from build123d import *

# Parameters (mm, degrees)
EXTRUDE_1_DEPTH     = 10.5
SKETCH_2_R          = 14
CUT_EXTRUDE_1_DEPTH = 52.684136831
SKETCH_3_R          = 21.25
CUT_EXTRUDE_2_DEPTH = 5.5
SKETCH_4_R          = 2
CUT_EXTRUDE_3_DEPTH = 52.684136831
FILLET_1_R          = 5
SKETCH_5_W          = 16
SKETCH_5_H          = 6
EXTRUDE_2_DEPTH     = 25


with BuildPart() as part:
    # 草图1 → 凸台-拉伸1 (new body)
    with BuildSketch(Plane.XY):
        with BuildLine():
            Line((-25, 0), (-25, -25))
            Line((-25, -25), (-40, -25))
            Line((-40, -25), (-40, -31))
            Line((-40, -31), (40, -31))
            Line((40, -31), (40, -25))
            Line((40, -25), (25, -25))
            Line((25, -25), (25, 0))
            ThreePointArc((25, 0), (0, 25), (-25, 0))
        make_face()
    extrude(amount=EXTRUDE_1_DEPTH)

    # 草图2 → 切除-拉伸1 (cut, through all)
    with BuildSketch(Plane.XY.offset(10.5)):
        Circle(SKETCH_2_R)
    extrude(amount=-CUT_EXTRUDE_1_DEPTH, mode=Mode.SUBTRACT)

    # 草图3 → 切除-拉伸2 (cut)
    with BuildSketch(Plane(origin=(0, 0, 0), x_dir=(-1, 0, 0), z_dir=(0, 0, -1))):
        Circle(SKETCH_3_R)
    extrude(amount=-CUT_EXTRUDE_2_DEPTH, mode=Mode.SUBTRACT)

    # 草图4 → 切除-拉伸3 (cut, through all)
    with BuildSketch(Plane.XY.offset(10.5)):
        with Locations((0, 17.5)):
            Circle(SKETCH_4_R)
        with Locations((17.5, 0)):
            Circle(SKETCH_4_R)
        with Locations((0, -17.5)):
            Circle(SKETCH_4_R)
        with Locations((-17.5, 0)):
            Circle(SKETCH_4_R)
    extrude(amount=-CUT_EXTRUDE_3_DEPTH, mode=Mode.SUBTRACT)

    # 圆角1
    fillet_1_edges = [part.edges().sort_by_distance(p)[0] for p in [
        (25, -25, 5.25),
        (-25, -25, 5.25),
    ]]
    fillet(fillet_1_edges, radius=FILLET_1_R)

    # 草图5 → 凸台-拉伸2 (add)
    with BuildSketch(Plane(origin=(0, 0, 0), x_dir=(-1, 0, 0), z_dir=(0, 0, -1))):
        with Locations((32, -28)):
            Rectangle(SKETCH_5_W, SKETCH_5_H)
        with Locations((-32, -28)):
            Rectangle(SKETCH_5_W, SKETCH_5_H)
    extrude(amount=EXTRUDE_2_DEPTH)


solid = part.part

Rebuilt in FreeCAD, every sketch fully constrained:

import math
import FreeCAD as App
import Part
import Sketcher


def edges_at(feature, points):
    """Names of the edges that pass closest to the given points."""
    edges = feature.Shape.Edges
    near = lambda p: min(range(len(edges)), key=lambda i: edges[i].distToShape(Part.Vertex(*p))[0])
    return sorted({f"Edge{near(p) + 1}" for p in points})

doc = App.newDocument("Part")
body = doc.addObject("PartDesign::Body", "Body")

# Sketch on XY plane
sketch1 = doc.addObject("Sketcher::SketchObject", "Sketch")
body.addObject(sketch1)
sketch1.AttachmentSupport = (doc.XY_Plane, [""])
sketch1.MapMode = "FlatFace"
sketch1.addGeometry([
    Part.LineSegment(App.Vector(-25, 0, 0), App.Vector(-25, -25, 0)),  # 0
    Part.LineSegment(App.Vector(-25, -25, 0), App.Vector(-40, -25, 0)),  # 1
    Part.LineSegment(App.Vector(-40, -25, 0), App.Vector(-40, -31, 0)),  # 2
    Part.LineSegment(App.Vector(-40, -31, 0), App.Vector(40, -31, 0)),  # 3
    Part.LineSegment(App.Vector(40, -31, 0), App.Vector(40, -25, 0)),  # 4
    Part.LineSegment(App.Vector(40, -25, 0), App.Vector(25, -25, 0)),  # 5
    Part.LineSegment(App.Vector(25, -25, 0), App.Vector(25, 0, 0)),  # 6
    Part.ArcOfCircle(Part.Circle(App.Vector(0, 0, 0), App.Vector(0, 0, 1), 25), math.radians(0), math.radians(180)),  # 7
], False)
sketch1.addConstraint([
    Sketcher.Constraint("Coincident", 0, 2, 1, 1),
    Sketcher.Constraint("Coincident", 1, 2, 2, 1),
    Sketcher.Constraint("Coincident", 2, 2, 3, 1),
    Sketcher.Constraint("Coincident", 3, 2, 4, 1),
    Sketcher.Constraint("Coincident", 4, 2, 5, 1),
    Sketcher.Constraint("Coincident", 5, 2, 6, 1),
    Sketcher.Constraint("Tangent", 6, 2, 7, 1),
    Sketcher.Constraint("Tangent", 7, 2, 0, 1),
    Sketcher.Constraint("Vertical", 0),
    Sketcher.Constraint("Horizontal", 1),
    Sketcher.Constraint("Vertical", 2),
    Sketcher.Constraint("Horizontal", 3),
    Sketcher.Constraint("Vertical", 4),
    Sketcher.Constraint("Horizontal", 5),
    Sketcher.Constraint("Vertical", 6),
    Sketcher.Constraint("Coincident", 7, 3, -1, 1),
    Sketcher.Constraint("Symmetric", 1, 2, 4, 2, -2),
    Sketcher.Constraint("Radius", 7, 25.0),
    Sketcher.Constraint("DistanceX", 1, 2, 1, 1, 15.0),
    Sketcher.Constraint("DistanceY", 0, 2, 0, 1, 25.0),
    Sketcher.Constraint("DistanceY", 2, 2, 2, 1, 6.0),
])
pad1 = doc.addObject("PartDesign::Pad", "Pad")
body.addObject(pad1)
pad1.Profile = sketch1
pad1.Length = 10.5

# Sketch on XY plane
sketch2 = doc.addObject("Sketcher::SketchObject", "Sketch001")
body.addObject(sketch2)
sketch2.AttachmentSupport = (doc.XY_Plane, [""])
sketch2.MapMode = "FlatFace"
sketch2.AttachmentOffset = App.Placement(App.Vector(0, 0, 10.5), App.Rotation())
sketch2.addGeometry(Part.Circle(App.Vector(0, 0, 0), App.Vector(0, 0, 1), 14), False)
sketch2.addConstraint([
    Sketcher.Constraint("Coincident", 0, 3, -1, 1),
    Sketcher.Constraint("Diameter", 0, 28.0),
])
pocket1 = doc.addObject("PartDesign::Pocket", "Pocket")
body.addObject(pocket1)
pocket1.Profile = sketch2
pocket1.Type = "ThroughAll"

# Sketch on XY plane
sketch3 = doc.addObject("Sketcher::SketchObject", "Sketch002")
body.addObject(sketch3)
sketch3.AttachmentSupport = (doc.XY_Plane, [""])
sketch3.MapMode = "FlatFace"
sketch3.addGeometry(Part.Circle(App.Vector(0, 0, 0), App.Vector(0, 0, 1), 21), False)
sketch3.addConstraint([
    Sketcher.Constraint("Coincident", 0, 3, -1, 1),
    Sketcher.Constraint("Diameter", 0, 42.5),
])
pocket2 = doc.addObject("PartDesign::Pocket", "Pocket001")
body.addObject(pocket2)
pocket2.Profile = sketch3
pocket2.Length = 5.5
pocket2.Reversed = True

# Sketch on XY plane
sketch4 = doc.addObject("Sketcher::SketchObject", "Sketch003")
body.addObject(sketch4)
sketch4.AttachmentSupport = (doc.XY_Plane, [""])
sketch4.MapMode = "FlatFace"
sketch4.AttachmentOffset = App.Placement(App.Vector(0, 0, 10.5), App.Rotation())
sketch4.addGeometry([
    Part.Circle(App.Vector(0, 17.5, 0), App.Vector(0, 0, 1), 2),
    Part.Circle(App.Vector(17.5, 0, 0), App.Vector(0, 0, 1), 2),
    Part.Circle(App.Vector(0, -17.5, 0), App.Vector(0, 0, 1), 2),
    Part.Circle(App.Vector(-17.5, 0, 0), App.Vector(0, 0, 1), 2),
], False)
sketch4.addConstraint([
    Sketcher.Constraint("Equal", 0, 1),
    Sketcher.Constraint("Equal", 1, 2),
    Sketcher.Constraint("Equal", 2, 3),
    Sketcher.Constraint("Symmetric", 0, 3, 2, 3, -1, 1),
    Sketcher.Constraint("Symmetric", 1, 3, 3, 3, -1, 1),
    Sketcher.Constraint("PointOnObject", 0, 3, -2),
    Sketcher.Constraint("PointOnObject", 1, 3, -1),
    Sketcher.Constraint("Diameter", 0, 4.0),
    Sketcher.Constraint("DistanceY", 2, 3, 0, 3, 35.0),
    Sketcher.Constraint("DistanceX", 3, 3, 1, 3, 35.0),
])
pocket3 = doc.addObject("PartDesign::Pocket", "Pocket002")
body.addObject(pocket3)
pocket3.Profile = sketch4
pocket3.Type = "ThroughAll"
doc.recompute()

fillet = doc.addObject("PartDesign::Fillet", "Fillet")
body.addObject(fillet)
fillet.Base = (pocket3, edges_at(pocket3, [(25, -25, 5.25), (-25, -25, 5.25)]))
fillet.Radius = 5

# Sketch on XY plane
sketch5 = doc.addObject("Sketcher::SketchObject", "Sketch004")
body.addObject(sketch5)
sketch5.AttachmentSupport = (doc.XY_Plane, [""])
sketch5.MapMode = "FlatFace"
sketch5.addGeometry([
    Part.LineSegment(App.Vector(-24, -25, 0), App.Vector(-24, -31, 0)),  # 0
    Part.LineSegment(App.Vector(-24, -31, 0), App.Vector(-40, -31, 0)),  # 1
    Part.LineSegment(App.Vector(-40, -31, 0), App.Vector(-40, -25, 0)),  # 2
    Part.LineSegment(App.Vector(-40, -25, 0), App.Vector(-24, -25, 0)),  # 3
    Part.LineSegment(App.Vector(40, -25, 0), App.Vector(40, -31, 0)),  # 4
    Part.LineSegment(App.Vector(40, -31, 0), App.Vector(24, -31, 0)),  # 5
    Part.LineSegment(App.Vector(24, -31, 0), App.Vector(24, -25, 0)),  # 6
    Part.LineSegment(App.Vector(24, -25, 0), App.Vector(40, -25, 0)),  # 7
], False)
sketch5.addConstraint([
    Sketcher.Constraint("Coincident", 0, 2, 1, 1),
    Sketcher.Constraint("Coincident", 1, 2, 2, 1),
    Sketcher.Constraint("Coincident", 2, 2, 3, 1),
    Sketcher.Constraint("Coincident", 3, 2, 0, 1),
    Sketcher.Constraint("Coincident", 4, 2, 5, 1),
    Sketcher.Constraint("Coincident", 5, 2, 6, 1),
    Sketcher.Constraint("Coincident", 6, 2, 7, 1),
    Sketcher.Constraint("Coincident", 7, 2, 4, 1),
    Sketcher.Constraint("Vertical", 0),
    Sketcher.Constraint("Horizontal", 1),
    Sketcher.Constraint("Vertical", 2),
    Sketcher.Constraint("Horizontal", 3),
    Sketcher.Constraint("Vertical", 4),
    Sketcher.Constraint("Horizontal", 5),
    Sketcher.Constraint("Vertical", 6),
    Sketcher.Constraint("Horizontal", 7),
    Sketcher.Constraint("Symmetric", 1, 2, 4, 2, -2),
    Sketcher.Constraint("Symmetric", 3, 2, 6, 2, -2),
    Sketcher.Constraint("DistanceX", 1, 2, 1, 1, 16.0),
    Sketcher.Constraint("DistanceY", 0, 2, 0, 1, 6.0),
    Sketcher.Constraint("DistanceX", 0, 2, -1, 1, 24.0),
    Sketcher.Constraint("DistanceY", 0, 2, -1, 1, 31.0),
])
pad2 = doc.addObject("PartDesign::Pad", "Pad001")
body.addObject(pad2)
pad2.Profile = sketch5
pad2.Length = 25
pad2.Reversed = True

doc.recompute()
